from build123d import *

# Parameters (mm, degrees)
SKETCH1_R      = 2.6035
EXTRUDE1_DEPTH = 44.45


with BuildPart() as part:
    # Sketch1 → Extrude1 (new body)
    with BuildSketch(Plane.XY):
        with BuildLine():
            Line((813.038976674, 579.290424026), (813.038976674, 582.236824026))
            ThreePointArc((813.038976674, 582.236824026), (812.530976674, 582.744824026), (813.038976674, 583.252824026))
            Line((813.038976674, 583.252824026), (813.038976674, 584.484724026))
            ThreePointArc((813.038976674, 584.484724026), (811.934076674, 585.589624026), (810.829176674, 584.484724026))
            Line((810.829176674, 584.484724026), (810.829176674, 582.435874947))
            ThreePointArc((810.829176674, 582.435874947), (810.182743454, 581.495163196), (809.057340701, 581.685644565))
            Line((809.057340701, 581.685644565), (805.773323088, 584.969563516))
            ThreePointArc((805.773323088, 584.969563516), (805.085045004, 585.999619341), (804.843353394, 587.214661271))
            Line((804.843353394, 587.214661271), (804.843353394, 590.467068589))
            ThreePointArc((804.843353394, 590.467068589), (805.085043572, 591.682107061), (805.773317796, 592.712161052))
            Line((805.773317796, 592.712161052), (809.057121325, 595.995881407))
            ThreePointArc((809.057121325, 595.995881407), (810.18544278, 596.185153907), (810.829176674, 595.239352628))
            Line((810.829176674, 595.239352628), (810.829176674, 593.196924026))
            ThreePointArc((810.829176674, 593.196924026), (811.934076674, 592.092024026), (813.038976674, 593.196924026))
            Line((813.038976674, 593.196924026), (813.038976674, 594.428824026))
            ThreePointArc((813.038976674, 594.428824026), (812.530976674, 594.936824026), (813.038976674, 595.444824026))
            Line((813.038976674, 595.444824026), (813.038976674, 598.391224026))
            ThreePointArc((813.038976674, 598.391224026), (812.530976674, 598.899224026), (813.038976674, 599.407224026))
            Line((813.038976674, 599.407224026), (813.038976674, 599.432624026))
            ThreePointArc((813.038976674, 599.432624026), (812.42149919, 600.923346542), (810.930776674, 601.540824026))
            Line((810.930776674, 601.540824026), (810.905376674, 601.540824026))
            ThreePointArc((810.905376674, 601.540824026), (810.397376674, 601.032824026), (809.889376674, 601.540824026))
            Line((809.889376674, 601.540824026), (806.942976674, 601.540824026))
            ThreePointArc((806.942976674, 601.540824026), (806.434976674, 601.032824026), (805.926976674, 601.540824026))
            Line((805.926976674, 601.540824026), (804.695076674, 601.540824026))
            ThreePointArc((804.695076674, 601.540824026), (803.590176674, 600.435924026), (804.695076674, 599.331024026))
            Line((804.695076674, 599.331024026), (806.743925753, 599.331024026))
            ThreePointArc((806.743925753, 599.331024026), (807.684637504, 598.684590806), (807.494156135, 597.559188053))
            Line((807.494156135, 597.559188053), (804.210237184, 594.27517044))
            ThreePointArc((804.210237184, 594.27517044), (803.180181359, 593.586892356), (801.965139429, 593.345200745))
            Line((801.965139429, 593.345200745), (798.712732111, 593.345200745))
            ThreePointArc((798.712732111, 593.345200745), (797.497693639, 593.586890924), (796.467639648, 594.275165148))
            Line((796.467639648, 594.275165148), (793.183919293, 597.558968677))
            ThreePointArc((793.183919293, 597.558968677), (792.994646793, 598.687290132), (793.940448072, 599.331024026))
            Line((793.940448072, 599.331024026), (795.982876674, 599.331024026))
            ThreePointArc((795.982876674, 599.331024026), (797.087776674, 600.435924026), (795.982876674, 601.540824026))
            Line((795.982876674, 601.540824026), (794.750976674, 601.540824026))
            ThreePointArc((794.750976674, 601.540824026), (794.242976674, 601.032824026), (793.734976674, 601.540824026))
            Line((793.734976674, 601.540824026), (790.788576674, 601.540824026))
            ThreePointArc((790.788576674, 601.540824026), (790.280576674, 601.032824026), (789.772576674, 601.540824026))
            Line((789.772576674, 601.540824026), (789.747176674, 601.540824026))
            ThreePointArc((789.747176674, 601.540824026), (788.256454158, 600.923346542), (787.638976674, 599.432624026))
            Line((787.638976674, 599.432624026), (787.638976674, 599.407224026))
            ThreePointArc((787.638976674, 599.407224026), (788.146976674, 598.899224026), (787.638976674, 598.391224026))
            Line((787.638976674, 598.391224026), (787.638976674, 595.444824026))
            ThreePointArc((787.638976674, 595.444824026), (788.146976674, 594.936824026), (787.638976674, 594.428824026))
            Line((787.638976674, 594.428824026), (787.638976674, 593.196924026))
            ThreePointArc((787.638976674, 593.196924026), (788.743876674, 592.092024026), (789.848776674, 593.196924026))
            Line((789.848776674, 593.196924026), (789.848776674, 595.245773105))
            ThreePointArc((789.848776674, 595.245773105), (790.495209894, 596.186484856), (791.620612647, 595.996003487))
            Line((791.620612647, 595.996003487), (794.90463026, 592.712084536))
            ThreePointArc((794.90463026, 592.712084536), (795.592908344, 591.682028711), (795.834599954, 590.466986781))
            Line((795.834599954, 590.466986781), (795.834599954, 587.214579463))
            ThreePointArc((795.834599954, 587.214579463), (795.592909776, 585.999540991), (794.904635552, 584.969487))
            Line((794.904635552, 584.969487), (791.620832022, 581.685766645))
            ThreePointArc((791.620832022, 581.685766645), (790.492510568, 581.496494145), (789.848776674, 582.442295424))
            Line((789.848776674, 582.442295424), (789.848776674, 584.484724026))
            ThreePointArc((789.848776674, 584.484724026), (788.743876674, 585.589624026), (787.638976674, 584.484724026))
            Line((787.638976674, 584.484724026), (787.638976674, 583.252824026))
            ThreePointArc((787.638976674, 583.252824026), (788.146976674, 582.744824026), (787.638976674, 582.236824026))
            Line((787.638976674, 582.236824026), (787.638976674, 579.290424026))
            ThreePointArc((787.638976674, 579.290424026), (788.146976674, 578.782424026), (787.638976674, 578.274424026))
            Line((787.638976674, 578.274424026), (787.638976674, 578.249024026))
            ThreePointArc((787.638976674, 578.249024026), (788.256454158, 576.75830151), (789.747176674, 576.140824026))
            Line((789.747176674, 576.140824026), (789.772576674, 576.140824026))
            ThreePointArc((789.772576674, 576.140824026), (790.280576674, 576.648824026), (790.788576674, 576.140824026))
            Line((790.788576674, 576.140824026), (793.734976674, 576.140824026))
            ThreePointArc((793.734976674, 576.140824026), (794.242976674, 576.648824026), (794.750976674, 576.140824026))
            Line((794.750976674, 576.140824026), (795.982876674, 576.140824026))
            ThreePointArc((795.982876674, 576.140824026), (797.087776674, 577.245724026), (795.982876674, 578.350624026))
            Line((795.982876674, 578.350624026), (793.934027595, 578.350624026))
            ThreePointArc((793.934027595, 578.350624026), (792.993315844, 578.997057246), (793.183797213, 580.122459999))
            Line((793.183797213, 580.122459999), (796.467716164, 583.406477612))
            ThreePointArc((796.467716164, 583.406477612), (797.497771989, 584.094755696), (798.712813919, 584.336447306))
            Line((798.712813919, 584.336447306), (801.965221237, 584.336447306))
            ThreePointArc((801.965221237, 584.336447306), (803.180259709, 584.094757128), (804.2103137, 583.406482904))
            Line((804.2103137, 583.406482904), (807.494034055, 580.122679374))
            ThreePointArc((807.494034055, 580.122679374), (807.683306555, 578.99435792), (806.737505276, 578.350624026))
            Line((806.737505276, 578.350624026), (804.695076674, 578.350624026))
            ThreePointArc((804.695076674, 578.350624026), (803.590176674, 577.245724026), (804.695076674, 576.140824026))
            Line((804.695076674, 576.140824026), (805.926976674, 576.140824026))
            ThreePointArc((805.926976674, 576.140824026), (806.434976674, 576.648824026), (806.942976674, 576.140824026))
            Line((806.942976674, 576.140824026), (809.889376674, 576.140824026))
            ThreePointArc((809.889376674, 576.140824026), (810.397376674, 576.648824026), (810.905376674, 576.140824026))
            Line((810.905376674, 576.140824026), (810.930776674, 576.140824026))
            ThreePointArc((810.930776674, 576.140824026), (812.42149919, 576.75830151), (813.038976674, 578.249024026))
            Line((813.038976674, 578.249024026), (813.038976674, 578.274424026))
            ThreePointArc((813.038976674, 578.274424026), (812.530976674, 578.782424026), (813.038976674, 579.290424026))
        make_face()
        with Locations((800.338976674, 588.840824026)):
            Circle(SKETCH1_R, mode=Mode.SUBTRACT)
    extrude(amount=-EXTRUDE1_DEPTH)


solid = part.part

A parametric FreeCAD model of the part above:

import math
import FreeCAD as App
import Part
import Sketcher

V = App.Vector
Q = App.Units.Quantity

doc = App.newDocument("Part")
body = doc.addObject("PartDesign::Body", "Body")

# Sketch on XY plane
sketch1 = body.newObject("Sketcher::SketchObject", "Sketch")
sketch1.AttachmentSupport = (doc.getObject("XY_Plane"), [""])
sketch1.MapMode = "FlatFace"
sketch1.addGeometry(Part.LineSegment(V(813.038977, 579.290424, 0), V(813.038977, 582.236824, 0)), False)
sketch1.addGeometry(Part.ArcOfCircle(Part.Circle(V(813.038977, 582.744824, 0), V(0, 0, 1), 0.508), math.radians(90), math.radians(270)), False)
sketch1.addGeometry(Part.LineSegment(V(813.038977, 583.252824, 0), V(813.038977, 584.484724, 0)), False)
sketch1.addGeometry(Part.ArcOfCircle(Part.Circle(V(811.934077, 584.484724, 0), V(0, 0, 1), 1.1049), math.radians(0), math.radians(180)), False)
sketch1.addGeometry(Part.LineSegment(V(810.829177, 584.484724, 0), V(810.829177, 582.435875, 0)), False)
sketch1.addGeometry(Part.ArcOfCircle(Part.Circle(V(809.769222, 582.471787, 0), V(0, 0, 1), 1.060563), math.radians(-132.161999), math.radians(-1.940482)), False)
sketch1.addGeometry(Part.LineSegment(V(809.057341, 581.685645, 0), V(805.773323, 584.969564, 0)), False)
sketch1.addGeometry(Part.ArcOfCircle(Part.Circle(V(808.018353, 587.214661, 0), V(0, 0, 1), 3.175), math.radians(180), math.radians(225.000861)), False)
sketch1.addGeometry(Part.LineSegment(V(804.843353, 587.214661, 0), V(804.843353, 590.467069, 0)), False)
sketch1.addGeometry(Part.ArcOfCircle(Part.Circle(V(808.018353, 590.467069, 0), V(0, 0, 1), 3.175), math.radians(134.999274), math.radians(180)), False)
sketch1.addGeometry(Part.LineSegment(V(805.773318, 592.712161, 0), V(809.057121, 595.995881, 0)), False)
sketch1.addGeometry(Part.ArcOfCircle(Part.Circle(V(809.769026, 595.209761, 0), V(0, 0, 1), 1.060563), math.radians(1.598875), math.radians(132.163755)), False)
sketch1.addGeometry(Part.LineSegment(V(810.829177, 595.239353, 0), V(810.829177, 593.196924, 0)), False)
sketch1.addGeometry(Part.ArcOfCircle(Part.Circle(V(811.934077, 593.196924, 0), V(0, 0, 1), 1.1049), math.radians(180), math.radians(360)), False)
sketch1.addGeometry(Part.LineSegment(V(813.038977, 593.196924, 0), V(813.038977, 594.428824, 0)), False)
sketch1.addGeometry(Part.ArcOfCircle(Part.Circle(V(813.038977, 594.936824, 0), V(0, 0, 1), 0.508), math.radians(90), math.radians(270)), False)
sketch1.addGeometry(Part.LineSegment(V(813.038977, 595.444824, 0), V(813.038977, 598.391224, 0)), False)
sketch1.addGeometry(Part.ArcOfCircle(Part.Circle(V(813.038977, 598.899224, 0), V(0, 0, 1), 0.508), math.radians(90), math.radians(270)), False)
sketch1.addGeometry(Part.LineSegment(V(813.038977, 599.407224, 0), V(813.038977, 599.432624, 0)), False)
sketch1.addGeometry(Part.ArcOfCircle(Part.Circle(V(810.930777, 599.432624, 0), V(0, 0, 1), 2.1082), math.radians(0), math.radians(90)), False)
sketch1.addGeometry(Part.LineSegment(V(810.930777, 601.540824, 0), V(810.905377, 601.540824, 0)), False)
sketch1.addGeometry(Part.ArcOfCircle(Part.Circle(V(810.397377, 601.540824, 0), V(0, 0, 1), 0.508), math.radians(180), math.radians(360)), False)
sketch1.addGeometry(Part.LineSegment(V(809.889377, 601.540824, 0), V(806.942977, 601.540824, 0)), False)
sketch1.addGeometry(Part.ArcOfCircle(Part.Circle(V(806.434977, 601.540824, 0), V(0, 0, 1), 0.508), math.radians(180), math.radians(360)), False)
sketch1.addGeometry(Part.LineSegment(V(805.926977, 601.540824, 0), V(804.695077, 601.540824, 0)), False)
sketch1.addGeometry(Part.ArcOfCircle(Part.Circle(V(804.695077, 600.435924, 0), V(0, 0, 1), 1.1049), math.radians(90), math.radians(270)), False)
sketch1.addGeometry(Part.LineSegment(V(804.695077, 599.331024, 0), V(806.743926, 599.331024, 0)), False)
sketch1.addGeometry(Part.ArcOfCircle(Part.Circle(V(806.708014, 598.271069, 0), V(0, 0, 1), 1.060563), math.radians(-42.161999), math.radians(88.059518)), False)
sketch1.addGeometry(Part.LineSegment(V(807.494156, 597.559188, 0), V(804.210237, 594.27517, 0)), False)
sketch1.addGeometry(Part.ArcOfCircle(Part.Circle(V(801.965139, 596.520201, 0), V(0, 0, 1), 3.175), math.radians(-90), math.radians(-44.999139)), False)
sketch1.addGeometry(Part.LineSegment(V(801.965139, 593.345201, 0), V(798.712732, 593.345201, 0)), False)
sketch1.addGeometry(Part.ArcOfCircle(Part.Circle(V(798.712732, 596.520201, 0), V(0, 0, 1), 3.175), math.radians(-135.000726), math.radians(-90)), False)
sketch1.addGeometry(Part.LineSegment(V(796.46764, 594.275165, 0), V(793.183919, 597.558969, 0)), False)
sketch1.addGeometry(Part.ArcOfCircle(Part.Circle(V(793.97004, 598.270874, 0), V(0, 0, 1), 1.060563), math.radians(91.598875), math.radians(222.163755)), False)
sketch1.addGeometry(Part.LineSegment(V(793.940448, 599.331024, 0), V(795.982877, 599.331024, 0)), False)
sketch1.addGeometry(Part.ArcOfCircle(Part.Circle(V(795.982877, 600.435924, 0), V(0, 0, 1), 1.1049), math.radians(-90), math.radians(90)), False)
sketch1.addGeometry(Part.LineSegment(V(795.982877, 601.540824, 0), V(794.750977, 601.540824, 0)), False)
sketch1.addGeometry(Part.ArcOfCircle(Part.Circle(V(794.242977, 601.540824, 0), V(0, 0, 1), 0.508), math.radians(180), math.radians(360)), False)
sketch1.addGeometry(Part.LineSegment(V(793.734977, 601.540824, 0), V(790.788577, 601.540824, 0)), False)
sketch1.addGeometry(Part.ArcOfCircle(Part.Circle(V(790.280577, 601.540824, 0), V(0, 0, 1), 0.508), math.radians(180), math.radians(360)), False)
sketch1.addGeometry(Part.LineSegment(V(789.772577, 601.540824, 0), V(789.747177, 601.540824, 0)), False)
sketch1.addGeometry(Part.ArcOfCircle(Part.Circle(V(789.747177, 599.432624, 0), V(0, 0, 1), 2.1082), math.radians(90), math.radians(180)), False)
sketch1.addGeometry(Part.LineSegment(V(787.638977, 599.432624, 0), V(787.638977, 599.407224, 0)), False)
sketch1.addGeometry(Part.ArcOfCircle(Part.Circle(V(787.638977, 598.899224, 0), V(0, 0, 1), 0.508), math.radians(-90), math.radians(90)), False)
sketch1.addGeometry(Part.LineSegment(V(787.638977, 598.391224, 0), V(787.638977, 595.444824, 0)), False)
sketch1.addGeometry(Part.ArcOfCircle(Part.Circle(V(787.638977, 594.936824, 0), V(0, 0, 1), 0.508), math.radians(-90), math.radians(90)), False)
sketch1.addGeometry(Part.LineSegment(V(787.638977, 594.428824, 0), V(787.638977, 593.196924, 0)), False)
sketch1.addGeometry(Part.ArcOfCircle(Part.Circle(V(788.743877, 593.196924, 0), V(0, 0, 1), 1.1049), math.radians(180), math.radians(360)), False)
sketch1.addGeometry(Part.LineSegment(V(789.848777, 593.196924, 0), V(789.848777, 595.245773, 0)), False)
sketch1.addGeometry(Part.ArcOfCircle(Part.Circle(V(790.908732, 595.209861, 0), V(0, 0, 1), 1.060563), math.radians(47.838001), math.radians(178.059518)), False)
sketch1.addGeometry(Part.LineSegment(V(791.620613, 595.996003, 0), V(794.90463, 592.712085, 0)), False)
sketch1.addGeometry(Part.ArcOfCircle(Part.Circle(V(792.6596, 590.466987, 0), V(0, 0, 1), 3.175), math.radians(0), math.radians(45.000861)), False)
sketch1.addGeometry(Part.LineSegment(V(795.8346, 590.466987, 0), V(795.8346, 587.214579, 0)), False)
sketch1.addGeometry(Part.ArcOfCircle(Part.Circle(V(792.6596, 587.214579, 0), V(0, 0, 1), 3.175), math.radians(-45.000726), math.radians(0)), False)
sketch1.addGeometry(Part.LineSegment(V(794.904636, 584.969487, 0), V(791.620832, 581.685767, 0)), False)
sketch1.addGeometry(Part.ArcOfCircle(Part.Circle(V(790.908927, 582.471887, 0), V(0, 0, 1), 1.060563), math.radians(-178.401125), math.radians(-47.836245)), False)
sketch1.addGeometry(Part.LineSegment(V(789.848777, 582.442295, 0), V(789.848777, 584.484724, 0)), False)
sketch1.addGeometry(Part.ArcOfCircle(Part.Circle(V(788.743877, 584.484724, 0), V(0, 0, 1), 1.1049), math.radians(0), math.radians(180)), False)
sketch1.addGeometry(Part.LineSegment(V(787.638977, 584.484724, 0), V(787.638977, 583.252824, 0)), False)
sketch1.addGeometry(Part.ArcOfCircle(Part.Circle(V(787.638977, 582.744824, 0), V(0, 0, 1), 0.508), math.radians(-90), math.radians(90)), False)
sketch1.addGeometry(Part.LineSegment(V(787.638977, 582.236824, 0), V(787.638977, 579.290424, 0)), False)
sketch1.addGeometry(Part.ArcOfCircle(Part.Circle(V(787.638977, 578.782424, 0), V(0, 0, 1), 0.508), math.radians(-90), math.radians(90)), False)
sketch1.addGeometry(Part.LineSegment(V(787.638977, 578.274424, 0), V(787.638977, 578.249024, 0)), False)
sketch1.addGeometry(Part.ArcOfCircle(Part.Circle(V(789.747177, 578.249024, 0), V(0, 0, 1), 2.1082), math.radians(180), math.radians(270)), False)
sketch1.addGeometry(Part.LineSegment(V(789.747177, 576.140824, 0), V(789.772577, 576.140824, 0)), False)
sketch1.addGeometry(Part.ArcOfCircle(Part.Circle(V(790.280577, 576.140824, 0), V(0, 0, 1), 0.508), math.radians(0), math.radians(180)), False)
sketch1.addGeometry(Part.LineSegment(V(790.788577, 576.140824, 0), V(793.734977, 576.140824, 0)), False)
sketch1.addGeometry(Part.ArcOfCircle(Part.Circle(V(794.242977, 576.140824, 0), V(0, 0, 1), 0.508), math.radians(0), math.radians(180)), False)
sketch1.addGeometry(Part.LineSegment(V(794.750977, 576.140824, 0), V(795.982877, 576.140824, 0)), False)
sketch1.addGeometry(Part.ArcOfCircle(Part.Circle(V(795.982877, 577.245724, 0), V(0, 0, 1), 1.1049), math.radians(-90), math.radians(90)), False)
sketch1.addGeometry(Part.LineSegment(V(795.982877, 578.350624, 0), V(793.934028, 578.350624, 0)), False)
sketch1.addGeometry(Part.ArcOfCircle(Part.Circle(V(793.96994, 579.410579, 0), V(0, 0, 1), 1.060563), math.radians(137.838001), math.radians(268.059518)), False)
sketch1.addGeometry(Part.LineSegment(V(793.183797, 580.12246, 0), V(796.467716, 583.406478, 0)), False)
sketch1.addGeometry(Part.ArcOfCircle(Part.Circle(V(798.712814, 581.161447, 0), V(0, 0, 1), 3.175), math.radians(90), math.radians(135.000861)), False)
sketch1.addGeometry(Part.LineSegment(V(798.712814, 584.336447, 0), V(801.965221, 584.336447, 0)), False)
sketch1.addGeometry(Part.ArcOfCircle(Part.Circle(V(801.965221, 581.161447, 0), V(0, 0, 1), 3.175), math.radians(44.999274), math.radians(90)), False)
sketch1.addGeometry(Part.LineSegment(V(804.210314, 583.406483, 0), V(807.494034, 580.122679, 0)), False)
sketch1.addGeometry(Part.ArcOfCircle(Part.Circle(V(806.707913, 579.410774, 0), V(0, 0, 1), 1.060563), math.radians(-88.401125), math.radians(42.163755)), False)
sketch1.addGeometry(Part.LineSegment(V(806.737505, 578.350624, 0), V(804.695077, 578.350624, 0)), False)
sketch1.addGeometry(Part.ArcOfCircle(Part.Circle(V(804.695077, 577.245724, 0), V(0, 0, 1), 1.1049), math.radians(90), math.radians(270)), False)
sketch1.addGeometry(Part.LineSegment(V(804.695077, 576.140824, 0), V(805.926977, 576.140824, 0)), False)
sketch1.addGeometry(Part.ArcOfCircle(Part.Circle(V(806.434977, 576.140824, 0), V(0, 0, 1), 0.508), math.radians(0), math.radians(180)), False)
sketch1.addGeometry(Part.LineSegment(V(806.942977, 576.140824, 0), V(809.889377, 576.140824, 0)), False)
sketch1.addGeometry(Part.ArcOfCircle(Part.Circle(V(810.397377, 576.140824, 0), V(0, 0, 1), 0.508), math.radians(0), math.radians(180)), False)
sketch1.addGeometry(Part.LineSegment(V(810.905377, 576.140824, 0), V(810.930777, 576.140824, 0)), False)
sketch1.addGeometry(Part.ArcOfCircle(Part.Circle(V(810.930777, 578.249024, 0), V(0, 0, 1), 2.1082), math.radians(-90), math.radians(0)), False)
sketch1.addGeometry(Part.LineSegment(V(813.038977, 578.249024, 0), V(813.038977, 578.274424, 0)), False)
sketch1.addGeometry(Part.ArcOfCircle(Part.Circle(V(813.038977, 578.782424, 0), V(0, 0, 1), 0.508), math.radians(90), math.radians(270)), False)
sketch1.addGeometry(Part.Circle(V(800.338977, 588.840824, 0), V(0, 0, 1), 2.6035), False)
sketch1.addConstraint(Sketcher.Constraint("Coincident", 0, 2, 1, 2))
sketch1.addConstraint(Sketcher.Constraint("Coincident", 1, 1, 2, 1))
sketch1.addConstraint(Sketcher.Constraint("Tangent", 2, 2, 3, 1))
sketch1.addConstraint(Sketcher.Constraint("Tangent", 3, 2, 4, 1))
sketch1.addConstraint(Sketcher.Constraint("Coincident", 4, 2, 5, 2))
sketch1.addConstraint(Sketcher.Constraint("Coincident", 5, 1, 6, 1))
sketch1.addConstraint(Sketcher.Constraint("Tangent", 6, 2, 7, 2))
sketch1.addConstraint(Sketcher.Constraint("Tangent", 7, 1, 8, 1))
sketch1.addConstraint(Sketcher.Constraint("Tangent", 8, 2, 9, 2))
sketch1.addConstraint(Sketcher.Constraint("Tangent", 9, 1, 10, 1))
sketch1.addConstraint(Sketcher.Constraint("Coincident", 10, 2, 11, 2))
sketch1.addConstraint(Sketcher.Constraint("Coincident", 11, 1, 12, 1))
sketch1.addConstraint(Sketcher.Constraint("Tangent", 12, 2, 13, 1))
sketch1.addConstraint(Sketcher.Constraint("Tangent", 13, 2, 14, 1))
sketch1.addConstraint(Sketcher.Constraint("Coincident", 14, 2, 15, 2))
sketch1.addConstraint(Sketcher.Constraint("Coincident", 15, 1, 16, 1))
sketch1.addConstraint(Sketcher.Constraint("Coincident", 16, 2, 17, 2))
sketch1.addConstraint(Sketcher.Constraint("Coincident", 17, 1, 18, 1))
sketch1.addConstraint(Sketcher.Constraint("Tangent", 18, 2, 19, 1))
sketch1.addConstraint(Sketcher.Constraint("Tangent", 19, 2, 20, 1))
sketch1.addConstraint(Sketcher.Constraint("Coincident", 20, 2, 21, 2))
sketch1.addConstraint(Sketcher.Constraint("Coincident", 21, 1, 22, 1))
sketch1.addConstraint(Sketcher.Constraint("Coincident", 22, 2, 23, 2))
sketch1.addConstraint(Sketcher.Constraint("Coincident", 23, 1, 24, 1))
sketch1.addConstraint(Sketcher.Constraint("Tangent", 24, 2, 25, 1))
sketch1.addConstraint(Sketcher.Constraint("Tangent", 25, 2, 26, 1))
sketch1.addConstraint(Sketcher.Constraint("Coincident", 26, 2, 27, 2))
sketch1.addConstraint(Sketcher.Constraint("Coincident", 27, 1, 28, 1))
sketch1.addConstraint(Sketcher.Constraint("Tangent", 28, 2, 29, 2))
sketch1.addConstraint(Sketcher.Constraint("Tangent", 29, 1, 30, 1))
sketch1.addConstraint(Sketcher.Constraint("Tangent", 30, 2, 31, 2))
sketch1.addConstraint(Sketcher.Constraint("Tangent", 31, 1, 32, 1))
sketch1.addConstraint(Sketcher.Constraint("Coincident", 32, 2, 33, 2))
sketch1.addConstraint(Sketcher.Constraint("Coincident", 33, 1, 34, 1))
sketch1.addConstraint(Sketcher.Constraint("Tangent", 34, 2, 35, 1))
sketch1.addConstraint(Sketcher.Constraint("Tangent", 35, 2, 36, 1))
sketch1.addConstraint(Sketcher.Constraint("Coincident", 36, 2, 37, 2))
sketch1.addConstraint(Sketcher.Constraint("Coincident", 37, 1, 38, 1))
sketch1.addConstraint(Sketcher.Constraint("Coincident", 38, 2, 39, 2))
sketch1.addConstraint(Sketcher.Constraint("Coincident", 39, 1, 40, 1))
sketch1.addConstraint(Sketcher.Constraint("Tangent", 40, 2, 41, 1))
sketch1.addConstraint(Sketcher.Constraint("Tangent", 41, 2, 42, 1))
sketch1.addConstraint(Sketcher.Constraint("Coincident", 42, 2, 43, 2))
sketch1.addConstraint(Sketcher.Constraint("Coincident", 43, 1, 44, 1))
sketch1.addConstraint(Sketcher.Constraint("Coincident", 44, 2, 45, 2))
sketch1.addConstraint(Sketcher.Constraint("Coincident", 45, 1, 46, 1))
sketch1.addConstraint(Sketcher.Constraint("Tangent", 46, 2, 47, 1))
sketch1.addConstraint(Sketcher.Constraint("Tangent", 47, 2, 48, 1))
sketch1.addConstraint(Sketcher.Constraint("Coincident", 48, 2, 49, 2))
sketch1.addConstraint(Sketcher.Constraint("Coincident", 49, 1, 50, 1))
sketch1.addConstraint(Sketcher.Constraint("Tangent", 50, 2, 51, 2))
sketch1.addConstraint(Sketcher.Constraint("Tangent", 51, 1, 52, 1))
sketch1.addConstraint(Sketcher.Constraint("Tangent", 52, 2, 53, 2))
sketch1.addConstraint(Sketcher.Constraint("Tangent", 53, 1, 54, 1))
sketch1.addConstraint(Sketcher.Constraint("Coincident", 54, 2, 55, 2))
sketch1.addConstraint(Sketcher.Constraint("Coincident", 55, 1, 56, 1))
sketch1.addConstraint(Sketcher.Constraint("Tangent", 56, 2, 57, 1))
sketch1.addConstraint(Sketcher.Constraint("Tangent", 57, 2, 58, 1))
sketch1.addConstraint(Sketcher.Constraint("Coincident", 58, 2, 59, 2))
sketch1.addConstraint(Sketcher.Constraint("Coincident", 59, 1, 60, 1))
sketch1.addConstraint(Sketcher.Constraint("Coincident", 60, 2, 61, 2))
sketch1.addConstraint(Sketcher.Constraint("Coincident", 61, 1, 62, 1))
sketch1.addConstraint(Sketcher.Constraint("Tangent", 62, 2, 63, 1))
sketch1.addConstraint(Sketcher.Constraint("Tangent", 63, 2, 64, 1))
sketch1.addConstraint(Sketcher.Constraint("Coincident", 64, 2, 65, 2))
sketch1.addConstraint(Sketcher.Constraint("Coincident", 65, 1, 66, 1))
sketch1.addConstraint(Sketcher.Constraint("Coincident", 66, 2, 67, 2))
sketch1.addConstraint(Sketcher.Constraint("Coincident", 67, 1, 68, 1))
sketch1.addConstraint(Sketcher.Constraint("Tangent", 68, 2, 69, 1))
sketch1.addConstraint(Sketcher.Constraint("Tangent", 69, 2, 70, 1))
sketch1.addConstraint(Sketcher.Constraint("Coincident", 70, 2, 71, 2))
sketch1.addConstraint(Sketcher.Constraint("Coincident", 71, 1, 72, 1))
sketch1.addConstraint(Sketcher.Constraint("Tangent", 72, 2, 73, 2))
sketch1.addConstraint(Sketcher.Constraint("Tangent", 73, 1, 74, 1))
sketch1.addConstraint(Sketcher.Constraint("Tangent", 74, 2, 75, 2))
sketch1.addConstraint(Sketcher.Constraint("Tangent", 75, 1, 76, 1))
sketch1.addConstraint(Sketcher.Constraint("Coincident", 76, 2, 77, 2))
sketch1.addConstraint(Sketcher.Constraint("Coincident", 77, 1, 78, 1))
sketch1.addConstraint(Sketcher.Constraint("Tangent", 78, 2, 79, 1))
sketch1.addConstraint(Sketcher.Constraint("Tangent", 79, 2, 80, 1))
sketch1.addConstraint(Sketcher.Constraint("Coincident", 80, 2, 81, 2))
sketch1.addConstraint(Sketcher.Constraint("Coincident", 81, 1, 82, 1))
sketch1.addConstraint(Sketcher.Constraint("Coincident", 82, 2, 83, 2))
sketch1.addConstraint(Sketcher.Constraint("Coincident", 83, 1, 84, 1))
sketch1.addConstraint(Sketcher.Constraint("Tangent", 84, 2, 85, 1))
sketch1.addConstraint(Sketcher.Constraint("Tangent", 85, 2, 86, 1))
sketch1.addConstraint(Sketcher.Constraint("Coincident", 86, 2, 87, 2))
sketch1.addConstraint(Sketcher.Constraint("Coincident", 87, 1, 0, 1))
sketch1.addConstraint(Sketcher.Constraint("Vertical", 0))
sketch1.addConstraint(Sketcher.Constraint("Vertical", 2))
sketch1.addConstraint(Sketcher.Constraint("Vertical", 4))
sketch1.addConstraint(Sketcher.Constraint("Vertical", 8))
sketch1.addConstraint(Sketcher.Constraint("Vertical", 12))
sketch1.addConstraint(Sketcher.Constraint("Vertical", 14))
sketch1.addConstraint(Sketcher.Constraint("Vertical", 16))
sketch1.addConstraint(Sketcher.Constraint("Vertical", 18))
sketch1.addConstraint(Sketcher.Constraint("Horizontal", 20))
sketch1.addConstraint(Sketcher.Constraint("Horizontal", 22))
sketch1.addConstraint(Sketcher.Constraint("Horizontal", 24))
sketch1.addConstraint(Sketcher.Constraint("Horizontal", 26))
sketch1.addConstraint(Sketcher.Constraint("Horizontal", 30))
sketch1.addConstraint(Sketcher.Constraint("Horizontal", 34))
sketch1.addConstraint(Sketcher.Constraint("Horizontal", 36))
sketch1.addConstraint(Sketcher.Constraint("Horizontal", 38))
sketch1.addConstraint(Sketcher.Constraint("Horizontal", 40))
sketch1.addConstraint(Sketcher.Constraint("Vertical", 42))
sketch1.addConstraint(Sketcher.Constraint("Vertical", 44))
sketch1.addConstraint(Sketcher.Constraint("Vertical", 46))
sketch1.addConstraint(Sketcher.Constraint("Vertical", 48))
sketch1.addConstraint(Sketcher.Constraint("Vertical", 52))
sketch1.addConstraint(Sketcher.Constraint("Vertical", 56))
sketch1.addConstraint(Sketcher.Constraint("Vertical", 58))
sketch1.addConstraint(Sketcher.Constraint("Vertical", 60))
sketch1.addConstraint(Sketcher.Constraint("Vertical", 62))
sketch1.addConstraint(Sketcher.Constraint("Horizontal", 64))
sketch1.addConstraint(Sketcher.Constraint("Horizontal", 66))
sketch1.addConstraint(Sketcher.Constraint("Horizontal", 68))
sketch1.addConstraint(Sketcher.Constraint("Horizontal", 70))
sketch1.addConstraint(Sketcher.Constraint("Horizontal", 74))
sketch1.addConstraint(Sketcher.Constraint("Horizontal", 78))
sketch1.addConstraint(Sketcher.Constraint("Horizontal", 80))
sketch1.addConstraint(Sketcher.Constraint("Horizontal", 82))
sketch1.addConstraint(Sketcher.Constraint("Horizontal", 84))
sketch1.addConstraint(Sketcher.Constraint("Vertical", 86))
sketch1.addConstraint(Sketcher.Constraint("Equal", 7, 9))
sketch1.addConstraint(Sketcher.Constraint("Equal", 5, 11))
sketch1.addConstraint(Sketcher.Constraint("Equal", 3, 13))
sketch1.addConstraint(Sketcher.Constraint("Equal", 1, 15))
sketch1.addConstraint(Sketcher.Constraint("Equal", 15, 17))
sketch1.addConstraint(Sketcher.Constraint("Equal", 17, 21))
sketch1.addConstraint(Sketcher.Constraint("Equal", 21, 23))
sketch1.addConstraint(Sketcher.Constraint("Equal", 13, 25))
sketch1.addConstraint(Sketcher.Constraint("Equal", 11, 27))
sketch1.addConstraint(Sketcher.Constraint("Equal", 9, 29))
sketch1.addConstraint(Sketcher.Constraint("Equal", 29, 31))
sketch1.addConstraint(Sketcher.Constraint("Equal", 27, 33))
sketch1.addConstraint(Sketcher.Constraint("Equal", 25, 35))
sketch1.addConstraint(Sketcher.Constraint("Equal", 23, 37))
sketch1.addConstraint(Sketcher.Constraint("Equal", 37, 39))
sketch1.addConstraint(Sketcher.Constraint("Equal", 19, 41))
sketch1.addConstraint(Sketcher.Constraint("Equal", 39, 43))
sketch1.addConstraint(Sketcher.Constraint("Equal", 43, 45))
sketch1.addConstraint(Sketcher.Constraint("Equal", 35, 47))
sketch1.addConstraint(Sketcher.Constraint("Equal", 33, 49))
sketch1.addConstraint(Sketcher.Constraint("Equal", 31, 51))
sketch1.addConstraint(Sketcher.Constraint("Equal", 51, 53))
sketch1.addConstraint(Sketcher.Constraint("Equal", 49, 55))
sketch1.addConstraint(Sketcher.Constraint("Equal", 47, 57))
sketch1.addConstraint(Sketcher.Constraint("Equal", 45, 59))
sketch1.addConstraint(Sketcher.Constraint("Equal", 59, 61))
sketch1.addConstraint(Sketcher.Constraint("Equal", 41, 63))
sketch1.addConstraint(Sketcher.Constraint("Equal", 61, 65))
sketch1.addConstraint(Sketcher.Constraint("Equal", 65, 67))
sketch1.addConstraint(Sketcher.Constraint("Equal", 57, 69))
sketch1.addConstraint(Sketcher.Constraint("Equal", 55, 71))
sketch1.addConstraint(Sketcher.Constraint("Equal", 53, 73))
sketch1.addConstraint(Sketcher.Constraint("Equal", 73, 75))
sketch1.addConstraint(Sketcher.Constraint("Equal", 71, 77))
sketch1.addConstraint(Sketcher.Constraint("Equal", 69, 79))
sketch1.addConstraint(Sketcher.Constraint("Equal", 67, 81))
sketch1.addConstraint(Sketcher.Constraint("Equal", 81, 83))
sketch1.addConstraint(Sketcher.Constraint("Equal", 63, 85))
sketch1.addConstraint(Sketcher.Constraint("Equal", 83, 87))
sketch1.addConstraint(Sketcher.Constraint("Perpendicular", 6, 28))
sketch1.addConstraint(Sketcher.Constraint("Perpendicular", 10, 32))
sketch1.addConstraint(Sketcher.Constraint("Perpendicular", 28, 50))
sketch1.addConstraint(Sketcher.Constraint("Perpendicular", 32, 54))
sketch1.addConstraint(Sketcher.Constraint("Perpendicular", 50, 72))
sketch1.addConstraint(Sketcher.Constraint("Perpendicular", 54, 76))
sketch1.addConstraint(Sketcher.Constraint("Horizontal", 21, 3, 23, 3))
sketch1.addConstraint(Sketcher.Constraint("Horizontal", 25, 3, 35, 3))
sketch1.addConstraint(Sketcher.Constraint("Horizontal", 23, 3, 37, 3))
sketch1.addConstraint(Sketcher.Constraint("Horizontal", 37, 3, 39, 3))
sketch1.addConstraint(Sketcher.Constraint("Horizontal", 19, 3, 41, 3))
sketch1.addConstraint(Sketcher.Constraint("Horizontal", 17, 3, 43, 3))
sketch1.addConstraint(Sketcher.Constraint("Horizontal", 15, 3, 45, 3))
sketch1.addConstraint(Sketcher.Constraint("Horizontal", 13, 3, 47, 3))
sketch1.addConstraint(Sketcher.Constraint("Horizontal", 3, 3, 57, 3))
sketch1.addConstraint(Sketcher.Constraint("Horizontal", 1, 3, 59, 3))
sketch1.addConstraint(Sketcher.Constraint("Horizontal", 65, 3, 67, 3))
sketch1.addConstraint(Sketcher.Constraint("Horizontal", 69, 3, 79, 3))
sketch1.addConstraint(Sketcher.Constraint("Horizontal", 67, 3, 81, 3))
sketch1.addConstraint(Sketcher.Constraint("Horizontal", 81, 3, 83, 3))
sketch1.addConstraint(Sketcher.Constraint("Horizontal", 63, 3, 85, 3))
sketch1.addConstraint(Sketcher.Constraint("Horizontal", 61, 3, 87, 3))
sketch1.addConstraint(Sketcher.Constraint("Horizontal", 39, 3, 19, 2))
sketch1.addConstraint(Sketcher.Constraint("Horizontal", 20, 2, 21, 1))
sketch1.addConstraint(Sketcher.Constraint("Horizontal", 22, 2, 23, 1))
sketch1.addConstraint(Sketcher.Constraint("Horizontal", 36, 2, 37, 1))
sketch1.addConstraint(Sketcher.Constraint("Horizontal", 83, 3, 63, 2))
sketch1.addConstraint(Sketcher.Constraint("Horizontal", 64, 2, 65, 1))
sketch1.addConstraint(Sketcher.Constraint("Horizontal", 66, 2, 67, 1))
sketch1.addConstraint(Sketcher.Constraint("Horizontal", 80, 2, 81, 1))
sketch1.addConstraint(Sketcher.Constraint("Vertical", 3, 3, 13, 3))
sketch1.addConstraint(Sketcher.Constraint("Vertical", 1, 3, 15, 3))
sketch1.addConstraint(Sketcher.Constraint("Vertical", 15, 3, 17, 3))
sketch1.addConstraint(Sketcher.Constraint("Vertical", 43, 3, 45, 3))
sketch1.addConstraint(Sketcher.Constraint("Vertical", 47, 3, 57, 3))
sketch1.addConstraint(Sketcher.Constraint("Vertical", 45, 3, 59, 3))
sketch1.addConstraint(Sketcher.Constraint("Vertical", 59, 3, 61, 3))
sketch1.addConstraint(Sketcher.Constraint("Vertical", 41, 3, 63, 3))
sketch1.addConstraint(Sketcher.Constraint("Vertical", 39, 3, 65, 3))
sketch1.addConstraint(Sketcher.Constraint("Vertical", 37, 3, 67, 3))
sketch1.addConstraint(Sketcher.Constraint("Vertical", 35, 3, 69, 3))
sketch1.addConstraint(Sketcher.Constraint("Vertical", 25, 3, 79, 3))
sketch1.addConstraint(Sketcher.Constraint("Vertical", 23, 3, 81, 3))
sketch1.addConstraint(Sketcher.Constraint("Vertical", 21, 3, 83, 3))
sketch1.addConstraint(Sketcher.Constraint("Vertical", 19, 3, 85, 3))
sketch1.addConstraint(Sketcher.Constraint("Vertical", 17, 3, 87, 3))
sketch1.addConstraint(Sketcher.Constraint("Vertical", 87, 3, 0, 2))
sketch1.addConstraint(Sketcher.Constraint("Vertical", 0, 2, 1, 1))
sketch1.addConstraint(Sketcher.Constraint("Vertical", 14, 2, 15, 1))
sketch1.addConstraint(Sketcher.Constraint("Vertical", 16, 2, 17, 1))
sketch1.addConstraint(Sketcher.Constraint("Vertical", 61, 3, 41, 2))
sketch1.addConstraint(Sketcher.Constraint("Vertical", 42, 2, 43, 1))
sketch1.addConstraint(Sketcher.Constraint("Vertical", 44, 2, 45, 1))
sketch1.addConstraint(Sketcher.Constraint("Vertical", 58, 2, 59, 1))
sketch1.addConstraint(Sketcher.Constraint("Equal", 24, 36))
sketch1.addConstraint(Sketcher.Constraint("Equal", 22, 38))
sketch1.addConstraint(Sketcher.Constraint("Equal", 20, 40))
sketch1.addConstraint(Sketcher.Constraint("Equal", 26, 70))
sketch1.addConstraint(Sketcher.Constraint("Equal", 30, 74))
sketch1.addConstraint(Sketcher.Constraint("Equal", 34, 78))
sketch1.addConstraint(Sketcher.Constraint("Equal", 82, 0))
sketch1.addConstraint(Sketcher.Constraint("Equal", 80, 2))
sketch1.addConstraint(Sketcher.Constraint("Equal", 70, 4))
sketch1.addConstraint(Sketcher.Constraint("Equal", 74, 8))
sketch1.addConstraint(Sketcher.Constraint("Equal", 78, 12))
sketch1.addConstraint(Sketcher.Constraint("Equal", 2, 14))
sketch1.addConstraint(Sketcher.Constraint("Equal", 0, 16))
sketch1.addConstraint(Sketcher.Constraint("Equal", 84, 18))
sketch1.addConstraint(Sketcher.Constraint("Equal", 4, 48))
sketch1.addConstraint(Sketcher.Constraint("Equal", 8, 52))
sketch1.addConstraint(Sketcher.Constraint("Equal", 12, 56))
sketch1.addConstraint(Sketcher.Constraint("Equal", 42, 62))
sketch1.addConstraint(Sketcher.Constraint("Equal", 6, 28))
sketch1.addConstraint(Sketcher.Constraint("Equal", 10, 32))
sketch1.addConstraint(Sketcher.Constraint("Equal", 28, 50))
sketch1.addConstraint(Sketcher.Constraint("Equal", 32, 54))
sketch1.addConstraint(Sketcher.Constraint("Equal", 50, 72))
sketch1.addConstraint(Sketcher.Constraint("Equal", 54, 76))
sketch1.addConstraint(Sketcher.Constraint("Radius", 1, Q("0.02 in")))
sketch1.addConstraint(Sketcher.Constraint("Diameter", 88, Q("0.205 in")))
sketch1.addConstraint(Sketcher.Constraint("Radius", 7, Q("0.125 in")))
sketch1.addConstraint(Sketcher.Constraint("Radius", 19, Q("0.083 in")))
sketch1.addConstraint(Sketcher.Constraint("Radius", 3, Q("0.0435 in")))
sketch1.addConstraint(Sketcher.Constraint("DistanceX", 20, 2, 20, 1, Q("0.001 in")))
sketch1.addConstraint(Sketcher.Constraint("DistanceX", 22, 2, 22, 1, Q("0.116 in")))
sketch1.addConstraint(Sketcher.Constraint("DistanceX", 24, 2, 24, 1, Q("0.0485 in")))
sketch1.addConstraint(Sketcher.Constraint("Radius", 5, 1.060563))
sketch1.addConstraint(Sketcher.Constraint("DistanceX", 26, 1, 26, 2, 2.048849))
sketch1.addConstraint(Sketcher.Constraint("DistanceX", 34, 1, 34, 2, 2.042429))
sketch1.addConstraint(Sketcher.Constraint("DistanceY", -1, 1, 29, 3, 596.520201))
sketch1.addConstraint(Sketcher.Constraint("DistanceX", -1, 1, 51, 3, 792.6596))
sketch1.addConstraint(Sketcher.Constraint("Distance", 10, 4.643941))
sketch1.addConstraint(Sketcher.Constraint("DistanceX", 30, 2, 30, 1, 3.252407))
sketch1.addConstraint(Sketcher.Constraint("DistanceX", -1, 1, 5, 3, 809.769222))
sketch1.addConstraint(Sketcher.Constraint("DistanceY", -1, 1, 7, 3, 587.214661))
sketch1.addConstraint(Sketcher.Constraint("DistanceY", -1, 1, 11, 3, 595.209761))
sketch1.addConstraint(Sketcher.Constraint("DistanceY", -1, 1, 27, 3, 598.271069))
sketch1.addConstraint(Sketcher.Constraint("DistanceX", -1, 1, 29, 3, 801.965139))
sketch1.addConstraint(Sketcher.Constraint("DistanceX", -1, 1, 33, 3, 793.97004))
sketch1.addConstraint(Sketcher.Constraint("DistanceX", -1, 1, 49, 3, 790.908732))
sketch1.addConstraint(Sketcher.Constraint("DistanceY", -1, 1, 49, 3, 595.209861))
sketch1.addConstraint(Sketcher.Constraint("DistanceY", -1, 1, 53, 3, 587.214579))
sketch1.addConstraint(Sketcher.Constraint("DistanceX", -1, 1, 71, 3, 793.96994))
sketch1.addConstraint(Sketcher.Constraint("DistanceY", -1, 1, 71, 3, 579.410579))
sketch1.addConstraint(Sketcher.Constraint("DistanceX", -1, 1, 75, 3, 801.965221))
sketch1.addConstraint(Sketcher.Constraint("DistanceX", -1, 1, 5, 1, 809.057341))
sketch1.addConstraint(Sketcher.Constraint("DistanceX", -1, 1, 88, 3, 800.338977))
sketch1.addConstraint(Sketcher.Constraint("DistanceY", -1, 1, 88, 3, 588.840824))
pad1 = body.newObject("PartDesign::Pad", "Pad")
pad1.Profile = sketch1
pad1.Length = Q("1.75 in")
pad1.Reversed = True

doc.recompute()
